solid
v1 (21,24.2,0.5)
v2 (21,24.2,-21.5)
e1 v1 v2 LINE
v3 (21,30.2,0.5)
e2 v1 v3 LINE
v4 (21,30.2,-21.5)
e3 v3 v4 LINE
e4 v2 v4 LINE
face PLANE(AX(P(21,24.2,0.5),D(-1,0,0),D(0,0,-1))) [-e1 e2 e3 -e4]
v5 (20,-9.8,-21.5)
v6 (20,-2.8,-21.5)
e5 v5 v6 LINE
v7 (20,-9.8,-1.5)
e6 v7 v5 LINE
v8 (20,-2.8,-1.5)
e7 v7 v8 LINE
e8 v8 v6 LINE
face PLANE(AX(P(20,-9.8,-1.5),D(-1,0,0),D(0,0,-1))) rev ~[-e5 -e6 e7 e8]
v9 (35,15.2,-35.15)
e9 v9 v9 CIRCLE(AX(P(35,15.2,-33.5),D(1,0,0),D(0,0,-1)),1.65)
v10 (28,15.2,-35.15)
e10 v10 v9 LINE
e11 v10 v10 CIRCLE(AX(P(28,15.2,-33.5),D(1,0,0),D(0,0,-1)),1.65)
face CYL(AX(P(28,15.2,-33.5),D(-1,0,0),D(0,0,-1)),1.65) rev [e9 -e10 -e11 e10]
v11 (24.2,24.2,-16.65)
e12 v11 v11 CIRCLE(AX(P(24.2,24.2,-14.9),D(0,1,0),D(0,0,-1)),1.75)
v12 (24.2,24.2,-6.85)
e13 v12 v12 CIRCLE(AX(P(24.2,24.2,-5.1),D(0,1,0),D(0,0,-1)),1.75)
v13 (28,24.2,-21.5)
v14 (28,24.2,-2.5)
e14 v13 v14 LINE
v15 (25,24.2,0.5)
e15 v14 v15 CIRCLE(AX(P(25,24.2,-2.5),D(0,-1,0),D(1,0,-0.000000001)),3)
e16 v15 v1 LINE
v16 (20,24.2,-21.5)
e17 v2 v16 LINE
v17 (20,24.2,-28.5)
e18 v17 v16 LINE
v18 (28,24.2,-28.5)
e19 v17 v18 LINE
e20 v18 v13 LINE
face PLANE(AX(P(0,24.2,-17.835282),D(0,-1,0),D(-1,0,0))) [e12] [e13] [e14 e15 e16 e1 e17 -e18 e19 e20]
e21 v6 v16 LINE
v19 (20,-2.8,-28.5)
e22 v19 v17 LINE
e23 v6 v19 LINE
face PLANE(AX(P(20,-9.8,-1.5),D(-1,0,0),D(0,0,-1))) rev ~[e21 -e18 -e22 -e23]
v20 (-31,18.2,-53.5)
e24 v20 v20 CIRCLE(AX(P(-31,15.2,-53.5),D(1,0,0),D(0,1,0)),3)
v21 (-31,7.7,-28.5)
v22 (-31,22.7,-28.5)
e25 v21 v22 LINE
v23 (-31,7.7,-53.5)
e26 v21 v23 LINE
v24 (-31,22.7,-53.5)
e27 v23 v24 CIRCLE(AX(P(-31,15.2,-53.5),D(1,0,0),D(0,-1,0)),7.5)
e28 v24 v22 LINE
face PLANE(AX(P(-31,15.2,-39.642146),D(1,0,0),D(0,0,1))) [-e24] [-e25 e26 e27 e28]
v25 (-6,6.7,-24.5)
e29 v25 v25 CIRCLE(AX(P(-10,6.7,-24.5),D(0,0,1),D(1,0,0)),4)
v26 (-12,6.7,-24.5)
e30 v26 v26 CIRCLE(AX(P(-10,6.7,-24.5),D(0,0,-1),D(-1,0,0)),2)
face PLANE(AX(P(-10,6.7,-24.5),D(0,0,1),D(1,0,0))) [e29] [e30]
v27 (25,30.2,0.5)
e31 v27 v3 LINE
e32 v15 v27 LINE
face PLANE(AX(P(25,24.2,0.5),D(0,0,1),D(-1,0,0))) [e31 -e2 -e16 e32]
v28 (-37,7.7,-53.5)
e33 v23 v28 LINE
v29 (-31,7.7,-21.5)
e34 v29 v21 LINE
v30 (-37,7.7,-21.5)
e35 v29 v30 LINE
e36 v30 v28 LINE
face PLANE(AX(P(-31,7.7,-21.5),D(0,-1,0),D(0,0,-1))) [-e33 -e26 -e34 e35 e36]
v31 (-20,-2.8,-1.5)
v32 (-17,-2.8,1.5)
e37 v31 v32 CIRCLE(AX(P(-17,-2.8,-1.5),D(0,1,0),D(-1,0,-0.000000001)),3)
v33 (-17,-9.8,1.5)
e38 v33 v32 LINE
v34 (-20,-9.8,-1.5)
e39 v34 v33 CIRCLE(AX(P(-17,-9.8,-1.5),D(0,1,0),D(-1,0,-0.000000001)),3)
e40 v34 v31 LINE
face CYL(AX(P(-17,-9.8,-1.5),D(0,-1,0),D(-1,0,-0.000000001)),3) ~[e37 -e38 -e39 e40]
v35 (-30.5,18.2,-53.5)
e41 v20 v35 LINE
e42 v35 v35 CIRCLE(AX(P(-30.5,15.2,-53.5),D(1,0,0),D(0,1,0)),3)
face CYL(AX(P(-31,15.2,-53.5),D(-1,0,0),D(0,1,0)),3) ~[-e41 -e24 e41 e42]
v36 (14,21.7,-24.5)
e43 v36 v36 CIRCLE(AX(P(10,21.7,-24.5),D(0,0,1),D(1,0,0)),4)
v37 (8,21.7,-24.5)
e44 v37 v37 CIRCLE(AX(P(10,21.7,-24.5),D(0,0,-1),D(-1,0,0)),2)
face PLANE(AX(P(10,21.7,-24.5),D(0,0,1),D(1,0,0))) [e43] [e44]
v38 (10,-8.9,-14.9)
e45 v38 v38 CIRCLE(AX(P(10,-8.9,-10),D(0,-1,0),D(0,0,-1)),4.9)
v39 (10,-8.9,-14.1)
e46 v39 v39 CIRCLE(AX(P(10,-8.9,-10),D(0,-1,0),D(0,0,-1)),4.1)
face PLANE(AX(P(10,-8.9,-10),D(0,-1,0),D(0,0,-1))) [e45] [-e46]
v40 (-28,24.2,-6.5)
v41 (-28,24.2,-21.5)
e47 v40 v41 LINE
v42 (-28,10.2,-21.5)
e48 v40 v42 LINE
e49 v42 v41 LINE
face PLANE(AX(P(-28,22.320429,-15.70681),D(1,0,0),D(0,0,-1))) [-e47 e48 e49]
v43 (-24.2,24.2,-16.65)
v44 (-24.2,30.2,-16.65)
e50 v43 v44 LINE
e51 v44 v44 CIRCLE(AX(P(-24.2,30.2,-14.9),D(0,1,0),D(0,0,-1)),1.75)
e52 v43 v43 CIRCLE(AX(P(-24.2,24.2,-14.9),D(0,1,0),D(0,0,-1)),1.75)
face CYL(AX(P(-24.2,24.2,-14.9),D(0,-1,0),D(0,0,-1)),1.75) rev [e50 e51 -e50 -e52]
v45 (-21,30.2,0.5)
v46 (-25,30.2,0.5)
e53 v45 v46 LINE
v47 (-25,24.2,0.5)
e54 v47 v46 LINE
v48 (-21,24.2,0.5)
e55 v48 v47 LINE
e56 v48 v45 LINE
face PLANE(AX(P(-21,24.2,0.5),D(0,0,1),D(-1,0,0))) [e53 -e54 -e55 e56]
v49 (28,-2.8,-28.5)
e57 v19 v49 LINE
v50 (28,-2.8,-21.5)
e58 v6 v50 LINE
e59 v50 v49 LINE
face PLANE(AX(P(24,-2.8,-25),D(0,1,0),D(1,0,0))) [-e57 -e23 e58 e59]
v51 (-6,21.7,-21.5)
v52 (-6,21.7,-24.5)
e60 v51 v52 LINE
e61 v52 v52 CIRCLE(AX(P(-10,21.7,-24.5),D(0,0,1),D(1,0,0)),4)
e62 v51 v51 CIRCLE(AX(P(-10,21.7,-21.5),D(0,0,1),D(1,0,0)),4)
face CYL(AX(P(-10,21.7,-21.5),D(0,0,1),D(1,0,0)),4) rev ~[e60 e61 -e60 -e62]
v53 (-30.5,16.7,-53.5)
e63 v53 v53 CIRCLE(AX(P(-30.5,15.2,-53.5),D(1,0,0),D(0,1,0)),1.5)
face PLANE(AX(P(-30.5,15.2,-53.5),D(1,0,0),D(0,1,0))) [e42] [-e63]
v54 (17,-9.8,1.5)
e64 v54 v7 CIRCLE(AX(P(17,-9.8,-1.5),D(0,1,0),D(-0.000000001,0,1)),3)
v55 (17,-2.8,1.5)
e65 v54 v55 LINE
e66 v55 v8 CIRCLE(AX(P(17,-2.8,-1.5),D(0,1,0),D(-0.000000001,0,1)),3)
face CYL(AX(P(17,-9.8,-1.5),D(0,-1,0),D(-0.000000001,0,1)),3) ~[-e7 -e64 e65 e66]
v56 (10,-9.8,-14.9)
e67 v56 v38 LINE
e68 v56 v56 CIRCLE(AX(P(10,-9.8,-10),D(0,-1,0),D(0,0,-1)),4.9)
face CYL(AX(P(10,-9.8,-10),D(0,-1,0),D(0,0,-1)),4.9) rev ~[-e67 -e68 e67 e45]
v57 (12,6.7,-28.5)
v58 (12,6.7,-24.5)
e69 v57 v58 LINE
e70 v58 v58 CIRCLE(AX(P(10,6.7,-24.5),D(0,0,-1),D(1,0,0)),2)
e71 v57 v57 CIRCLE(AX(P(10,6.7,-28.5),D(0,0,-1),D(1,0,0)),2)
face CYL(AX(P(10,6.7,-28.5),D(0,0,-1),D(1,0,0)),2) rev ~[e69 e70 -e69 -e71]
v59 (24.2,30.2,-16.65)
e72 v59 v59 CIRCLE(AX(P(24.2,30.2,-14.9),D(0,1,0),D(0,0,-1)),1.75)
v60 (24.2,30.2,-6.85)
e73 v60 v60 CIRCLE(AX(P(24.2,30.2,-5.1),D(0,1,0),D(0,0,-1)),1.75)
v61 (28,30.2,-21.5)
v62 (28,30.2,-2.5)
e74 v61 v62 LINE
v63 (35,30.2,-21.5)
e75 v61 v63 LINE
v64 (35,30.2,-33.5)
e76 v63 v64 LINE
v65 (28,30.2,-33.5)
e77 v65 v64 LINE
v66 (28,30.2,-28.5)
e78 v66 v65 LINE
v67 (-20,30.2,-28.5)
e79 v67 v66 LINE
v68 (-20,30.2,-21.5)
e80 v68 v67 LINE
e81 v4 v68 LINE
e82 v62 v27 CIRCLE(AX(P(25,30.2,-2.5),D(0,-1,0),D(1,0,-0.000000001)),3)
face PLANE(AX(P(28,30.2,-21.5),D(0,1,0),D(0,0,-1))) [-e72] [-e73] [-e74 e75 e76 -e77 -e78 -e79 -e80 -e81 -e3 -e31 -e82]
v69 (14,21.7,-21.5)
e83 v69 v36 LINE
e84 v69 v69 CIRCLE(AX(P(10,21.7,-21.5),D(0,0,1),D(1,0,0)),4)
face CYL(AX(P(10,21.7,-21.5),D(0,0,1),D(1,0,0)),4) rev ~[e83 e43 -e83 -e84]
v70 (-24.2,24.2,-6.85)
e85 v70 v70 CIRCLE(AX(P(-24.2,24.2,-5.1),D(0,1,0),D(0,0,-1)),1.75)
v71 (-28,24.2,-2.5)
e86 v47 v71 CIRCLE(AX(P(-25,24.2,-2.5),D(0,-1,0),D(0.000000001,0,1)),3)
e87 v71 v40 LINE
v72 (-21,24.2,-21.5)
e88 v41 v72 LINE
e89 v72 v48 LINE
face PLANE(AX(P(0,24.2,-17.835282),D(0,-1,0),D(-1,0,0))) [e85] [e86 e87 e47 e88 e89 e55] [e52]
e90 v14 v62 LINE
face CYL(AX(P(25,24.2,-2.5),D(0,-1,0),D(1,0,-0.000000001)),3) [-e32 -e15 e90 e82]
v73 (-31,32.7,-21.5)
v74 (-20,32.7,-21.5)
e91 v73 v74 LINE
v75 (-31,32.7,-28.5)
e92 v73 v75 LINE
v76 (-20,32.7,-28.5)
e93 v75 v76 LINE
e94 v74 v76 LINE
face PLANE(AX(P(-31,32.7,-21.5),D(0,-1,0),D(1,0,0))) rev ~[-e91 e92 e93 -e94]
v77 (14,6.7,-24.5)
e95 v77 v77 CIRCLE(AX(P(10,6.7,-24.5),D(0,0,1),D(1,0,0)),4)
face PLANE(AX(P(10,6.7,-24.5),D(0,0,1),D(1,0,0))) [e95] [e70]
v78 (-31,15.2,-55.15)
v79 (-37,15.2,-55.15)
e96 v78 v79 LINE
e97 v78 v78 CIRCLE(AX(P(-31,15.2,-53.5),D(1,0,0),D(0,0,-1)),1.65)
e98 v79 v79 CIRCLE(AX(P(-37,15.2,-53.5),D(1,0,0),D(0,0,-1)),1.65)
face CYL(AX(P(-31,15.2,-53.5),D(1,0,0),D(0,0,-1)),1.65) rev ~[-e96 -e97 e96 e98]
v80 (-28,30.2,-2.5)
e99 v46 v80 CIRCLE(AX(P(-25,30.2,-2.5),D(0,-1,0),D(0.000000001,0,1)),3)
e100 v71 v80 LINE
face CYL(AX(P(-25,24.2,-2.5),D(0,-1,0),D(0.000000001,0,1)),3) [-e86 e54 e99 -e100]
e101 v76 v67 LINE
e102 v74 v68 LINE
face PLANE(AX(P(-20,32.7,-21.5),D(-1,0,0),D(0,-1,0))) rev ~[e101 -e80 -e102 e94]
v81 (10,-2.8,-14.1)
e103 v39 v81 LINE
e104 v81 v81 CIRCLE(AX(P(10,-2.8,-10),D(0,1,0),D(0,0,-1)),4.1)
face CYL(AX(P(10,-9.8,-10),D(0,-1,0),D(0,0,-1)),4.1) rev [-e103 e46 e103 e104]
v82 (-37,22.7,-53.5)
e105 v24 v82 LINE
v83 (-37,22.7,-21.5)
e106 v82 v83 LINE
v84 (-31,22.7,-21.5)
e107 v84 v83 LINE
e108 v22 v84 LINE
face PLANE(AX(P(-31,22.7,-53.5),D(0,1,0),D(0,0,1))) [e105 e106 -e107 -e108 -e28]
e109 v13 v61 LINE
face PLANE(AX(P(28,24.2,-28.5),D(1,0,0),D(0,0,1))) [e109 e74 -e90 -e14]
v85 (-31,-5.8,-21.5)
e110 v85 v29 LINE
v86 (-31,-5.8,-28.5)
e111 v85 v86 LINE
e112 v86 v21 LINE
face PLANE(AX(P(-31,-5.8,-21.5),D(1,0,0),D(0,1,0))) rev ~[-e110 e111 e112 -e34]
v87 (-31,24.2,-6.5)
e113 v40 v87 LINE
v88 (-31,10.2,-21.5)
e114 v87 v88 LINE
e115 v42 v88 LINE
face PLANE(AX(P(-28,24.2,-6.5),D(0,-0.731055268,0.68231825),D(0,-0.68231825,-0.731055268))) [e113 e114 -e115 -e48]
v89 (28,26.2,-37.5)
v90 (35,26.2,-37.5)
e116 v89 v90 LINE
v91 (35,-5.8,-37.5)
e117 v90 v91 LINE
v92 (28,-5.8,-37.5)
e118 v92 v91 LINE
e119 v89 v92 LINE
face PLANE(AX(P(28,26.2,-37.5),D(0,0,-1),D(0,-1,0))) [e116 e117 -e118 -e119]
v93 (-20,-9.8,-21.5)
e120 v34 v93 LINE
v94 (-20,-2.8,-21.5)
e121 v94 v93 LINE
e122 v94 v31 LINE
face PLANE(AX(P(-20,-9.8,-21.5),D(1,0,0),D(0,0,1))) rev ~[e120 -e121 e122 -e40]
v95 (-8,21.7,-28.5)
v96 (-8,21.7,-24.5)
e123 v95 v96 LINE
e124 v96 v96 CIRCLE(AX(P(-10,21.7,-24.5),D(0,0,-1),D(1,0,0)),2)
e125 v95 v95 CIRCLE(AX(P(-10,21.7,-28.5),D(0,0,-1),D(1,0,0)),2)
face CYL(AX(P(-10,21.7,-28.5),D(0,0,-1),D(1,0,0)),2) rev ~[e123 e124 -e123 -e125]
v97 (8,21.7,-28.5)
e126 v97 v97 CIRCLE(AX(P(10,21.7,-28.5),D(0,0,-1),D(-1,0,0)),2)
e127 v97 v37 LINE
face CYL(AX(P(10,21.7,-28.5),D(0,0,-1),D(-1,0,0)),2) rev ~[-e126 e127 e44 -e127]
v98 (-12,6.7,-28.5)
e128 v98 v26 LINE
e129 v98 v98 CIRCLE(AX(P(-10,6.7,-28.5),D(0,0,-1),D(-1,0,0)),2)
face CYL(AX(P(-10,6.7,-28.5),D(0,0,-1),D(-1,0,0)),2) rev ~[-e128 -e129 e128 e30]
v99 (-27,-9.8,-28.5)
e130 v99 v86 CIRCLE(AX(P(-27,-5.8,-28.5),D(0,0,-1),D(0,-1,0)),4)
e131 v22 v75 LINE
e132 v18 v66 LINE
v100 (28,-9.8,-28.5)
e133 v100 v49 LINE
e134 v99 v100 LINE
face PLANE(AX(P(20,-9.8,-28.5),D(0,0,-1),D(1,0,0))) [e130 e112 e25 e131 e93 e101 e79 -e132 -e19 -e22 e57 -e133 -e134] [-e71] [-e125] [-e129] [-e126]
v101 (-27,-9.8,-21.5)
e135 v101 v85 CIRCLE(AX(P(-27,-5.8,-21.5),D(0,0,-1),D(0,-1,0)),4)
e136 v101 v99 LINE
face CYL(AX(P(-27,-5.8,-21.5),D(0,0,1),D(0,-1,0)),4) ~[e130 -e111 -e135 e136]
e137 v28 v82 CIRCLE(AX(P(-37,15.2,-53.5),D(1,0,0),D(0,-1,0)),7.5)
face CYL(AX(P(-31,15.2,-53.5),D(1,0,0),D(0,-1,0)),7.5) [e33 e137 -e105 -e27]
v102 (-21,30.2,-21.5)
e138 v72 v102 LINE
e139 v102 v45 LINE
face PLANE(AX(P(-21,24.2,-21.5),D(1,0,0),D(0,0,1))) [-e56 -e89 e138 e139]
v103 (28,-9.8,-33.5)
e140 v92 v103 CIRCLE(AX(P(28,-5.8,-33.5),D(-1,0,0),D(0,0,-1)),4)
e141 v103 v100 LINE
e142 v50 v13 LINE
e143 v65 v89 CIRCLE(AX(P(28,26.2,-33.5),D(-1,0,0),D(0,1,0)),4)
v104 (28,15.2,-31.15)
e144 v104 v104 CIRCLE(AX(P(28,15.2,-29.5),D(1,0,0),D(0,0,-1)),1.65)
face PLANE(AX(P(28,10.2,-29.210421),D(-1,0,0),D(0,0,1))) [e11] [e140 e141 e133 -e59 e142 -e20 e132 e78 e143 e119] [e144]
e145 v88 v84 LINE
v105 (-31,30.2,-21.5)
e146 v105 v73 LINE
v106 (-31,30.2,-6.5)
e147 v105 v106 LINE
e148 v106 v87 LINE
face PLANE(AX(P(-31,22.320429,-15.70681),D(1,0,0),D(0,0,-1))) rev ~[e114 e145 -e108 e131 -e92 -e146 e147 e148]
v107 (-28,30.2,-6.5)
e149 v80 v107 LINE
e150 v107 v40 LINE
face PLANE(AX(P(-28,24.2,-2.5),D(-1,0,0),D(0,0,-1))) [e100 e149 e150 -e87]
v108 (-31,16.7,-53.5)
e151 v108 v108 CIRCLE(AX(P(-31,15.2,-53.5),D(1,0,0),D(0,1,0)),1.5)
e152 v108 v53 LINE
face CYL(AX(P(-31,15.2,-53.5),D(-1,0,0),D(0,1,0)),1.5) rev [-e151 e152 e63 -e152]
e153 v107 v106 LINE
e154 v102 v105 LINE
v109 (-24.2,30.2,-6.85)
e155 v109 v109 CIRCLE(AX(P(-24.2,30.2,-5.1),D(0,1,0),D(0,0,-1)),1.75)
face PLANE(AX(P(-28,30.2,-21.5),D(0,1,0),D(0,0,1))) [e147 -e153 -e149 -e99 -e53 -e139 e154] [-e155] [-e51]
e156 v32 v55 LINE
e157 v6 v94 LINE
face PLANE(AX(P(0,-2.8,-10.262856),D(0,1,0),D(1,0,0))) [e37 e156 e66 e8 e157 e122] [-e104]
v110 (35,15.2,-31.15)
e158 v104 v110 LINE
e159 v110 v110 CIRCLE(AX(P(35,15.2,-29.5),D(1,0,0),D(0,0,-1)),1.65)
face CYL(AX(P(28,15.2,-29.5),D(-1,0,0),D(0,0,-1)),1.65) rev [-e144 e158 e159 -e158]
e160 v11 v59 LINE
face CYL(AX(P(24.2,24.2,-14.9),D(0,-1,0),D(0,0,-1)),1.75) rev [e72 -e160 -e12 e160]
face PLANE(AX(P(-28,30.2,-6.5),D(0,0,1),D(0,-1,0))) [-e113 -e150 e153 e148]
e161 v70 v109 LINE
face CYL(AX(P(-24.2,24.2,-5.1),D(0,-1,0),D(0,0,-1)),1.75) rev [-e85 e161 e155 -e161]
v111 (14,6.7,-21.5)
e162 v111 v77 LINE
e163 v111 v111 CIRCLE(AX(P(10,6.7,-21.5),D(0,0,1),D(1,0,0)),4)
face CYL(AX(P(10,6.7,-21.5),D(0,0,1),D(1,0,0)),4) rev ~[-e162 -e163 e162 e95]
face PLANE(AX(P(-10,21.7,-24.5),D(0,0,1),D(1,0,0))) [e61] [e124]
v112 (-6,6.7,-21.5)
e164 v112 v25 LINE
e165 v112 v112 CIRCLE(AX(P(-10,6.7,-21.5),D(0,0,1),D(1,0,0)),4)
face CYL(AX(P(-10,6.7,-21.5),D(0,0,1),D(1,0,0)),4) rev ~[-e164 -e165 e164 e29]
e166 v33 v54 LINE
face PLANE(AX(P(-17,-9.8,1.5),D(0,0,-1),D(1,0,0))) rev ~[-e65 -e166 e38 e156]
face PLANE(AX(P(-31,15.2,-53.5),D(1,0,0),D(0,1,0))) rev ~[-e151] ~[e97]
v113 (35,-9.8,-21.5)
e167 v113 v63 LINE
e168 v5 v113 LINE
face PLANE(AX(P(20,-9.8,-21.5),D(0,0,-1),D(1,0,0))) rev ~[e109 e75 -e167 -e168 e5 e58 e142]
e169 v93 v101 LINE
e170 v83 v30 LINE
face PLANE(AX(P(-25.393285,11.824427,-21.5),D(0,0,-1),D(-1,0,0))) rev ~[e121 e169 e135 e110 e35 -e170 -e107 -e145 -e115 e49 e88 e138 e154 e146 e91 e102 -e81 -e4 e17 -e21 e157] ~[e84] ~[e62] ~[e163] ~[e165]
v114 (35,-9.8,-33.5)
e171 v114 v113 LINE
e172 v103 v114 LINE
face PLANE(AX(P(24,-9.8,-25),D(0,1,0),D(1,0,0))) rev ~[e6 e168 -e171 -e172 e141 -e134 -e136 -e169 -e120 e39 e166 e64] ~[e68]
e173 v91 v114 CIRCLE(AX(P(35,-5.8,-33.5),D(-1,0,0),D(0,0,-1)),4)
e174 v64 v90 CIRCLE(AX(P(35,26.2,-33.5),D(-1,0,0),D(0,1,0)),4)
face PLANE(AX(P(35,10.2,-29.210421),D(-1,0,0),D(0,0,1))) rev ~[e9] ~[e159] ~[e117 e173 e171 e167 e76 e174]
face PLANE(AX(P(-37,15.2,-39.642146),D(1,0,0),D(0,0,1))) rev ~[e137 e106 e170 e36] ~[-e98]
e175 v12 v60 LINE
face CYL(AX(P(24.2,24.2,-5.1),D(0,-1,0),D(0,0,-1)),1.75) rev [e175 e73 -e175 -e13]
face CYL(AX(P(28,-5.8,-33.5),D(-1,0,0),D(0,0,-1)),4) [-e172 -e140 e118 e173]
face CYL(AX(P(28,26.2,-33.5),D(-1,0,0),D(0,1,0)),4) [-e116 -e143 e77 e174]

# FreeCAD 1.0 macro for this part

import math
import FreeCAD as App
import Part
import Sketcher


def add_polygon(sketch, points):
    """Adds a closed chain of lines whose ends are joined by coincident constraints."""
    first, n = sketch.GeometryCount, len(points)
    for a, b in zip(points, points[1:] + points[:1]):
        sketch.addGeometry(Part.LineSegment(App.Vector(*a, 0), App.Vector(*b, 0)), False)
    for i in range(n):
        sketch.addConstraint(Sketcher.Constraint("Coincident", first + i, 2, first + (i + 1) % n, 1))

doc = App.newDocument("Part")
params = doc.addObject("Spreadsheet::Sheet", "Params")
for row, (alias, value) in enumerate([
    ("sketch1_radius", "3 mm"),
    ("sketch1_diameter", "3.5 mm"),
    ("sketch1_width", "56 mm"),
    ("sketch1_width2", "4 mm"),
    ("sketch1_height", "26 mm"),
    ("pad1_length", "6 mm"),
    ("sketch2_diameter", "4 mm"),
    ("sketch2_width", "40 mm"),
    ("sketch2_height", "34 mm"),
    ("pad2_length", "7 mm"),
    ("sketch3_diameter", "8 mm"),
    ("pocket1_length", "3 mm"),
    ("sketch4_radius", "3 mm"),
    ("sketch4_diameter", "8.2 mm"),
    ("sketch4_width", "40 mm"),
    ("sketch4_height", "20 mm"),
    ("pad3_length", "7 mm"),
    ("sketch5_diameter", "9.8 mm"),
    ("pocket2_length", "0.9 mm"),
    ("sketch6_diameter", "3.3 mm"),
    ("sketch6_radius", "7.5 mm"),
    ("sketch6_height", "32 mm"),
    ("pad4_length", "6 mm"),
    ("sketch7_radius", "4 mm"),
    ("sketch7_width", "11 mm"),
    ("sketch7_height", "38.5 mm"),
    ("pad5_length", "7 mm"),
    ("sketch8_width", "6 mm"),
    ("sketch8_width2", "20 mm"),
    ("sketch8_height", "15 mm"),
    ("pad6_length", "3 mm"),
    ("sketch9_radius", "4 mm"),
    ("sketch9_diameter", "3.3 mm"),
    ("sketch9_width", "40 mm"),
    ("sketch9_height", "12 mm"),
    ("pad7_length", "7 mm"),
    ("sketch10_width", "8 mm"),
    ("sketch10_height", "7 mm"),
    ("pad8_length", "7 mm"),
    ("sketch11_diameter", "6 mm"),
    ("sketch11_diameter2", "3 mm"),
    ("pad9_length", "0.5 mm"),
], start=1):
    params.set(f"A{row}", alias)
    params.set(f"B{row}", "=" + value)
    params.setAlias(f"B{row}", alias)

body = doc.addObject("PartDesign::Body", "Body")

# Sketch on XZ plane
sketch1 = doc.addObject("Sketcher::SketchObject", "Sketch")
body.addObject(sketch1)
sketch1.AttachmentSupport = (doc.XZ_Plane, [""])
sketch1.MapMode = "FlatFace"
sketch1.AttachmentOffset = App.Placement(App.Vector(0, 0, -24.2), App.Rotation())
sketch1.addGeometry([
    Part.LineSegment(App.Vector(28, -28.5, 0), App.Vector(-28, -28.5, 0)),  # 0
    Part.LineSegment(App.Vector(-28, -28.5, 0), App.Vector(-28, -2.5, 0)),  # 1
    Part.ArcOfCircle(Part.Circle(App.Vector(-25, -2.5, 0), App.Vector(0, 0, 1), 3), math.radians(90), math.radians(180)),  # 2
    Part.LineSegment(App.Vector(-25, 0.5, 0), App.Vector(-21, 0.5, 0)),  # 3
    Part.LineSegment(App.Vector(-21, 0.5, 0), App.Vector(-21, -21.5, 0)),  # 4
    Part.LineSegment(App.Vector(-21, -21.5, 0), App.Vector(21, -21.5, 0)),  # 5
    Part.LineSegment(App.Vector(21, -21.5, 0), App.Vector(21, 0.5, 0)),  # 6
    Part.LineSegment(App.Vector(21, 0.5, 0), App.Vector(25, 0.5, 0)),  # 7
    Part.ArcOfCircle(Part.Circle(App.Vector(25, -2.5, 0), App.Vector(0, 0, 1), 3), math.radians(0), math.radians(90)),  # 8
    Part.LineSegment(App.Vector(28, -2.5, 0), App.Vector(28, -28.5, 0)),  # 9
    Part.Circle(App.Vector(24.2, -5.1, 0), App.Vector(0, 0, 1), 1.8),  # 10
    Part.Circle(App.Vector(-24.2, -5.1, 0), App.Vector(0, 0, 1), 1.8),  # 11
    Part.Circle(App.Vector(24.2, -14.9, 0), App.Vector(0, 0, 1), 1.8),  # 12
    Part.Circle(App.Vector(-24.2, -14.9, 0), App.Vector(0, 0, 1), 1.8),  # 13
], False)
sketch1.addConstraint([
    Sketcher.Constraint("Coincident", 0, 2, 1, 1),
    Sketcher.Constraint("Tangent", 1, 2, 2, 2),
    Sketcher.Constraint("Tangent", 2, 1, 3, 1),
    Sketcher.Constraint("Coincident", 3, 2, 4, 1),
    Sketcher.Constraint("Coincident", 4, 2, 5, 1),
    Sketcher.Constraint("Coincident", 5, 2, 6, 1),
    Sketcher.Constraint("Coincident", 6, 2, 7, 1),
    Sketcher.Constraint("Tangent", 7, 2, 8, 2),
    Sketcher.Constraint("Tangent", 8, 1, 9, 1),
    Sketcher.Constraint("Coincident", 9, 2, 0, 1),
    Sketcher.Constraint("Horizontal", 0),
    Sketcher.Constraint("Vertical", 1),
    Sketcher.Constraint("Horizontal", 3),
    Sketcher.Constraint("Vertical", 4),
    Sketcher.Constraint("Horizontal", 5),
    Sketcher.Constraint("Vertical", 6),
    Sketcher.Constraint("Horizontal", 7),
    Sketcher.Constraint("Vertical", 9),
    Sketcher.Constraint("Equal", 2, 8),
    Sketcher.Constraint("Equal", 10, 11),
    Sketcher.Constraint("Equal", 11, 12),
    Sketcher.Constraint("Equal", 12, 13),
    Sketcher.Constraint("Symmetric", 2, 3, 8, 3, -2),
    Sketcher.Constraint("Symmetric", 10, 3, 11, 3, -2),
    Sketcher.Constraint("Symmetric", 12, 3, 13, 3, -2),
    Sketcher.Constraint("Vertical", 10, 3, 12, 3),
    Sketcher.Constraint("Equal", 3, 7),
    Sketcher.Constraint("Radius", 2, 3.0),
    Sketcher.Constraint("Diameter", 10, 3.5),
    Sketcher.Constraint("DistanceX", 0, 2, 0, 1, 56.0),
    Sketcher.Constraint("DistanceX", 3, 1, 3, 2, 4.0),
    Sketcher.Constraint("DistanceY", 1, 1, 1, 2, 26.0),
    Sketcher.Constraint("DistanceY", 4, 2, 4, 1, 22.0),
    Sketcher.Constraint("DistanceY", 2, 3, -1, 1, 2.5),
    Sketcher.Constraint("DistanceX", -1, 1, 10, 3, 24.2),
    Sketcher.Constraint("DistanceY", 10, 3, -1, 1, 5.1),
    Sketcher.Constraint("DistanceY", 12, 3, -1, 1, 14.9),
])
sketch1.setExpression("Constraints[27]", "Params.sketch1_radius")
sketch1.setExpression("Constraints[28]", "Params.sketch1_diameter")
sketch1.setExpression("Constraints[29]", "Params.sketch1_width")
sketch1.setExpression("Constraints[30]", "Params.sketch1_width2")
sketch1.setExpression("Constraints[31]", "Params.sketch1_height")
pad1 = doc.addObject("PartDesign::Pad", "Pad")
body.addObject(pad1)
pad1.Profile = sketch1
pad1.setExpression("Length", "Params.pad1_length")
pad1.Reversed = True

# Sketch on XY plane
sketch2 = doc.addObject("Sketcher::SketchObject", "Sketch001")
body.addObject(sketch2)
sketch2.AttachmentSupport = (doc.XY_Plane, [""])
sketch2.MapMode = "FlatFace"
sketch2.AttachmentOffset = App.Placement(App.Vector(0, 0, -28.5), App.Rotation())
add_polygon(sketch2, [(20, 24.2), (20, -9.8), (-20, -9.8), (-20, 24.2)])  # lines 0-3
sketch2.addGeometry(Part.Circle(App.Vector(10, 6.7, 0), App.Vector(0, 0, 1), 2), False)  # 4
sketch2.addGeometry(Part.Circle(App.Vector(-10, 6.7, 0), App.Vector(0, 0, 1), 2), False)  # 5
sketch2.addGeometry(Part.Circle(App.Vector(10, 21.7, 0), App.Vector(0, 0, 1), 2), False)  # 6
sketch2.addGeometry(Part.Circle(App.Vector(-10, 21.7, 0), App.Vector(0, 0, 1), 2), False)  # 7
sketch2.addConstraint([
    Sketcher.Constraint("Vertical", 0),
    Sketcher.Constraint("Horizontal", 1),
    Sketcher.Constraint("Vertical", 2),
    Sketcher.Constraint("Horizontal", 3),
    Sketcher.Constraint("Equal", 4, 5),
    Sketcher.Constraint("Equal", 5, 6),
    Sketcher.Constraint("Equal", 6, 7),
    Sketcher.Constraint("Symmetric", 4, 3, 5, 3, -2),
    Sketcher.Constraint("Symmetric", 6, 3, 7, 3, -2),
    Sketcher.Constraint("Vertical", 4, 3, 6, 3),
    Sketcher.Constraint("Diameter", 4, 4.0),
    Sketcher.Constraint("DistanceX", 1, 2, 1, 1, 40.0),
    Sketcher.Constraint("DistanceY", 0, 2, 0, 1, 34.0),
    Sketcher.Constraint("DistanceX", -1, 1, 4, 3, 10.0),
    Sketcher.Constraint("DistanceX", -1, 1, 0, 2, 20.0),
    Sketcher.Constraint("DistanceY", 4, 3, 6, 3, 15.0),
    Sketcher.Constraint("DistanceY", -1, 1, 4, 3, 6.7),
    Sketcher.Constraint("DistanceY", 0, 2, -1, 1, 9.8),
])
sketch2.setExpression("Constraints[14]", "Params.sketch2_diameter")
sketch2.setExpression("Constraints[15]", "Params.sketch2_width")
sketch2.setExpression("Constraints[16]", "Params.sketch2_height")
pad2 = doc.addObject("PartDesign::Pad", "Pad001")
body.addObject(pad2)
pad2.Profile = sketch2
pad2.setExpression("Length", "Params.pad2_length")

# Sketch on XY plane
sketch3 = doc.addObject("Sketcher::SketchObject", "Sketch002")
body.addObject(sketch3)
sketch3.AttachmentSupport = (doc.XY_Plane, [""])
sketch3.MapMode = "FlatFace"
sketch3.AttachmentOffset = App.Placement(App.Vector(0, 0, -21.5), App.Rotation())
sketch3.addGeometry([
    Part.Circle(App.Vector(-10, 21.7, 0), App.Vector(0, 0, 1), 4),
    Part.Circle(App.Vector(10, 21.7, 0), App.Vector(0, 0, 1), 4),
    Part.Circle(App.Vector(-10, 6.7, 0), App.Vector(0, 0, 1), 4),
    Part.Circle(App.Vector(10, 6.7, 0), App.Vector(0, 0, 1), 4),
], False)
sketch3.addConstraint([
    Sketcher.Constraint("Equal", 0, 1),
    Sketcher.Constraint("Equal", 1, 2),
    Sketcher.Constraint("Equal", 2, 3),
    Sketcher.Constraint("Symmetric", 0, 3, 1, 3, -2),
    Sketcher.Constraint("Symmetric", 2, 3, 3, 3, -2),
    Sketcher.Constraint("Vertical", 0, 3, 2, 3),
    Sketcher.Constraint("Diameter", 0, 8.0),
    Sketcher.Constraint("DistanceX", 0, 3, -1, 1, 10.0),
    Sketcher.Constraint("DistanceY", 2, 3, 0, 3, 15.0),
    Sketcher.Constraint("DistanceY", -1, 1, 0, 3, 21.7),
])
sketch3.setExpression("Constraints[6]", "Params.sketch3_diameter")
pocket1 = doc.addObject("PartDesign::Pocket", "Pocket")
body.addObject(pocket1)
pocket1.Profile = sketch3
pocket1.setExpression("Length", "Params.pocket1_length")

# Sketch on XZ plane
sketch4 = doc.addObject("Sketcher::SketchObject", "Sketch003")
body.addObject(sketch4)
sketch4.AttachmentSupport = (doc.XZ_Plane, [""])
sketch4.MapMode = "FlatFace"
sketch4.AttachmentOffset = App.Placement(App.Vector(0, 0, 9.8), App.Rotation())
sketch4.addGeometry([
    Part.LineSegment(App.Vector(20, -21.5, 0), App.Vector(-20, -21.5, 0)),  # 0
    Part.LineSegment(App.Vector(-20, -21.5, 0), App.Vector(-20, -1.5, 0)),  # 1
    Part.ArcOfCircle(Part.Circle(App.Vector(-17, -1.5, 0), App.Vector(0, 0, 1), 3), math.radians(90), math.radians(180)),  # 2
    Part.LineSegment(App.Vector(-17, 1.5, 0), App.Vector(17, 1.5, 0)),  # 3
    Part.ArcOfCircle(Part.Circle(App.Vector(17, -1.5, 0), App.Vector(0, 0, 1), 3), math.radians(0), math.radians(90)),  # 4
    Part.LineSegment(App.Vector(20, -1.5, 0), App.Vector(20, -21.5, 0)),  # 5
    Part.Circle(App.Vector(10, -10, 0), App.Vector(0, 0, 1), 4.1),  # 6
], False)
sketch4.addConstraint([
    Sketcher.Constraint("Coincident", 0, 2, 1, 1),
    Sketcher.Constraint("Tangent", 1, 2, 2, 2),
    Sketcher.Constraint("Tangent", 2, 1, 3, 1),
    Sketcher.Constraint("Tangent", 3, 2, 4, 2),
    Sketcher.Constraint("Tangent", 4, 1, 5, 1),
    Sketcher.Constraint("Coincident", 5, 2, 0, 1),
    Sketcher.Constraint("Horizontal", 0),
    Sketcher.Constraint("Vertical", 1),
    Sketcher.Constraint("Horizontal", 3),
    Sketcher.Constraint("Vertical", 5),
    Sketcher.Constraint("Equal", 2, 4),
    Sketcher.Constraint("Radius", 2, 3.0),
    Sketcher.Constraint("Diameter", 6, 8.2),
    Sketcher.Constraint("DistanceX", 0, 2, 0, 1, 40.0),
    Sketcher.Constraint("DistanceY", 1, 1, 1, 2, 20.0),
    Sketcher.Constraint("DistanceX", 2, 3, -1, 1, 17.0),
    Sketcher.Constraint("DistanceX", -1, 1, 6, 3, 10.0),
    Sketcher.Constraint("DistanceY", 6, 3, -1, 1, 10.0),
    Sketcher.Constraint("DistanceY", 2, 3, -1, 1, 1.5),
])
sketch4.setExpression("Constraints[11]", "Params.sketch4_radius")
sketch4.setExpression("Constraints[12]", "Params.sketch4_diameter")
sketch4.setExpression("Constraints[13]", "Params.sketch4_width")
sketch4.setExpression("Constraints[14]", "Params.sketch4_height")
pad3 = doc.addObject("PartDesign::Pad", "Pad002")
body.addObject(pad3)
pad3.Profile = sketch4
pad3.setExpression("Length", "Params.pad3_length")
pad3.Reversed = True

# Sketch on XZ plane
sketch5 = doc.addObject("Sketcher::SketchObject", "Sketch004")
body.addObject(sketch5)
sketch5.AttachmentSupport = (doc.XZ_Plane, [""])
sketch5.MapMode = "FlatFace"
sketch5.AttachmentOffset = App.Placement(App.Vector(0, 0, 9.8), App.Rotation())
sketch5.addGeometry(Part.Circle(App.Vector(10, -10, 0), App.Vector(0, 0, 1), 4.9), False)
sketch5.addConstraint([
    Sketcher.Constraint("Diameter", 0, 9.8),
    Sketcher.Constraint("DistanceX", -1, 1, 0, 3, 10.0),
    Sketcher.Constraint("DistanceY", 0, 3, -1, 1, 10.0),
])
sketch5.setExpression("Constraints[0]", "Params.sketch5_diameter")
pocket2 = doc.addObject("PartDesign::Pocket", "Pocket001")
body.addObject(pocket2)
pocket2.Profile = sketch5
pocket2.setExpression("Length", "Params.pocket2_length")
body2 = doc.addObject("PartDesign::Body", "Body001")

# Sketch on YZ plane
sketch6 = doc.addObject("Sketcher::SketchObject", "Sketch005")
body2.addObject(sketch6)
sketch6.AttachmentSupport = (doc.getObject("YZ_Plane001"), [""])
sketch6.MapMode = "FlatFace"
sketch6.AttachmentOffset = App.Placement(App.Vector(0, 0, -31), App.Rotation())
sketch6.addGeometry([
    Part.LineSegment(App.Vector(22.7, -53.5, 0), App.Vector(22.7, -21.5, 0)),  # 0
    Part.LineSegment(App.Vector(22.7, -21.5, 0), App.Vector(7.7, -21.5, 0)),  # 1
    Part.LineSegment(App.Vector(7.7, -21.5, 0), App.Vector(7.7, -53.5, 0)),  # 2
    Part.ArcOfCircle(Part.Circle(App.Vector(15.2, -53.5, 0), App.Vector(0, 0, 1), 7.5), math.radians(180), math.radians(360)),  # 3
    Part.Circle(App.Vector(15.2, -53.5, 0), App.Vector(0, 0, 1), 1.6),  # 4
], False)
sketch6.addConstraint([
    Sketcher.Constraint("Coincident", 0, 2, 1, 1),
    Sketcher.Constraint("Coincident", 1, 2, 2, 1),
    Sketcher.Constraint("Tangent", 2, 2, 3, 1),
    Sketcher.Constraint("Tangent", 3, 2, 0, 1),
    Sketcher.Constraint("Vertical", 0),
    Sketcher.Constraint("Horizontal", 1),
    Sketcher.Constraint("Vertical", 2),
    Sketcher.Constraint("Coincident", 4, 3, 3, 3),
    Sketcher.Constraint("Diameter", 4, 3.3),
    Sketcher.Constraint("Radius", 3, 7.5),
    Sketcher.Constraint("DistanceY", 0, 1, 0, 2, 32.0),
    Sketcher.Constraint("DistanceX", -1, 1, 3, 3, 15.2),
    Sketcher.Constraint("DistanceY", 3, 3, -1, 1, 53.5),
])
sketch6.setExpression("Constraints[8]", "Params.sketch6_diameter")
sketch6.setExpression("Constraints[9]", "Params.sketch6_radius")
sketch6.setExpression("Constraints[10]", "Params.sketch6_height")
pad4 = doc.addObject("PartDesign::Pad", "Pad003")
body2.addObject(pad4)
pad4.Profile = sketch6
pad4.setExpression("Length", "Params.pad4_length")
pad4.Reversed = True
body.AllowCompound = True
doc.recompute()

boolean = doc.addObject("PartDesign::Boolean", "Boolean")
body.addObject(boolean)
boolean.Type = "Fuse"
boolean.addObjects([body2])

# Sketch on XY plane
sketch7 = doc.addObject("Sketcher::SketchObject", "Sketch006")
body.addObject(sketch7)
sketch7.AttachmentSupport = (doc.XY_Plane, [""])
sketch7.MapMode = "FlatFace"
sketch7.AttachmentOffset = App.Placement(App.Vector(0, 0, -21.5), App.Rotation())
sketch7.addGeometry([
    Part.LineSegment(App.Vector(-20, 32.7, 0), App.Vector(-31, 32.7, 0)),  # 0
    Part.LineSegment(App.Vector(-31, 32.7, 0), App.Vector(-31, -5.8, 0)),  # 1
    Part.ArcOfCircle(Part.Circle(App.Vector(-27, -5.8, 0), App.Vector(0, 0, 1), 4), math.radians(180), math.radians(270)),  # 2
    Part.LineSegment(App.Vector(-27, -9.8, 0), App.Vector(-20, -9.8, 0)),  # 3
    Part.LineSegment(App.Vector(-20, -9.8, 0), App.Vector(-20, 32.7, 0)),  # 4
], False)
sketch7.addConstraint([
    Sketcher.Constraint("Coincident", 0, 2, 1, 1),
    Sketcher.Constraint("Tangent", 1, 2, 2, 1),
    Sketcher.Constraint("Tangent", 2, 2, 3, 1),
    Sketcher.Constraint("Coincident", 3, 2, 4, 1),
    Sketcher.Constraint("Coincident", 4, 2, 0, 1),
    Sketcher.Constraint("Horizontal", 0),
    Sketcher.Constraint("Vertical", 1),
    Sketcher.Constraint("Horizontal", 3),
    Sketcher.Constraint("Vertical", 4),
    Sketcher.Constraint("Radius", 2, 4.0),
    Sketcher.Constraint("DistanceX", 0, 2, 0, 1, 11.0),
    Sketcher.Constraint("DistanceY", 1, 2, 1, 1, 38.5),
    Sketcher.Constraint("DistanceX", 2, 3, -1, 1, 27.0),
    Sketcher.Constraint("DistanceY", 2, 3, -1, 1, 5.8),
])
sketch7.setExpression("Constraints[9]", "Params.sketch7_radius")
sketch7.setExpression("Constraints[10]", "Params.sketch7_width")
sketch7.setExpression("Constraints[11]", "Params.sketch7_height")
pad5 = doc.addObject("PartDesign::Pad", "Pad004")
body.addObject(pad5)
pad5.Profile = sketch7
pad5.setExpression("Length", "Params.pad5_length")
pad5.Reversed = True

# Sketch on YZ plane
sketch8 = doc.addObject("Sketcher::SketchObject", "Sketch007")
body.addObject(sketch8)
sketch8.AttachmentSupport = (doc.YZ_Plane, [""])
sketch8.MapMode = "FlatFace"
sketch8.AttachmentOffset = App.Placement(App.Vector(0, 0, -28), App.Rotation())
add_polygon(sketch8, [(30, -6), (24, -6), (10, -22), (30, -22)])  # lines 0-3
sketch8.addConstraint([
    Sketcher.Constraint("Horizontal", 0),
    Sketcher.Constraint("Horizontal", 2),
    Sketcher.Constraint("Vertical", 3),
    Sketcher.Constraint("DistanceX", 0, 2, 0, 1, 6.0),
    Sketcher.Constraint("DistanceX", 2, 1, 2, 2, 20.0),
    Sketcher.Constraint("DistanceY", 3, 1, 3, 2, 15.0),
    Sketcher.Constraint("DistanceX", -1, 1, 0, 2, 24.2),
    Sketcher.Constraint("DistanceY", 0, 2, -1, 1, 6.5),
])
sketch8.setExpression("Constraints[7]", "Params.sketch8_width")
sketch8.setExpression("Constraints[8]", "Params.sketch8_width2")
sketch8.setExpression("Constraints[9]", "Params.sketch8_height")
pad6 = doc.addObject("PartDesign::Pad", "Pad005")
body.addObject(pad6)
pad6.Profile = sketch8
pad6.setExpression("Length", "Params.pad6_length")
pad6.Reversed = True

# Sketch on YZ plane
sketch9 = doc.addObject("Sketcher::SketchObject", "Sketch008")
body.addObject(sketch9)
sketch9.AttachmentSupport = (doc.YZ_Plane, [""])
sketch9.MapMode = "FlatFace"
sketch9.AttachmentOffset = App.Placement(App.Vector(0, 0, 28), App.Rotation())
sketch9.addGeometry([
    Part.LineSegment(App.Vector(30.2, -33.5, 0), App.Vector(30.2, -21.5, 0)),  # 0
    Part.LineSegment(App.Vector(30.2, -21.5, 0), App.Vector(-9.8, -21.5, 0)),  # 1
    Part.LineSegment(App.Vector(-9.8, -21.5, 0), App.Vector(-9.8, -33.5, 0)),  # 2
    Part.ArcOfCircle(Part.Circle(App.Vector(-5.8, -33.5, 0), App.Vector(0, 0, 1), 4), math.radians(180), math.radians(270)),  # 3
    Part.LineSegment(App.Vector(-5.8, -37.5, 0), App.Vector(26.2, -37.5, 0)),  # 4
    Part.ArcOfCircle(Part.Circle(App.Vector(26.2, -33.5, 0), App.Vector(0, 0, 1), 4), math.radians(-90), math.radians(0)),  # 5
    Part.Circle(App.Vector(15.2, -33.5, 0), App.Vector(0, 0, 1), 1.6),  # 6
    Part.Circle(App.Vector(15.2, -29.5, 0), App.Vector(0, 0, 1), 1.6),  # 7
], False)
sketch9.addConstraint([
    Sketcher.Constraint("Coincident", 0, 2, 1, 1),
    Sketcher.Constraint("Coincident", 1, 2, 2, 1),
    Sketcher.Constraint("Tangent", 2, 2, 3, 1),
    Sketcher.Constraint("Tangent", 3, 2, 4, 1),
    Sketcher.Constraint("Tangent", 4, 2, 5, 1),
    Sketcher.Constraint("Tangent", 5, 2, 0, 1),
    Sketcher.Constraint("Vertical", 0),
    Sketcher.Constraint("Horizontal", 1),
    Sketcher.Constraint("Vertical", 2),
    Sketcher.Constraint("Horizontal", 4),
    Sketcher.Constraint("Equal", 3, 5),
    Sketcher.Constraint("Equal", 6, 7),
    Sketcher.Constraint("Horizontal", 5, 3, 6, 3),
    Sketcher.Constraint("Vertical", 6, 3, 7, 3),
    Sketcher.Constraint("Radius", 3, 4.0),
    Sketcher.Constraint("Diameter", 6, 3.3),
    Sketcher.Constraint("DistanceX", 1, 2, 1, 1, 40.0),
    Sketcher.Constraint("DistanceY", 0, 1, 0, 2, 12.0),
    Sketcher.Constraint("DistanceX", 6, 3, 5, 3, 11.0),
    Sketcher.Constraint("DistanceY", 6, 3, 7, 3, 4.0),
    Sketcher.Constraint("DistanceX", 3, 3, -1, 1, 5.8),
    Sketcher.Constraint("DistanceY", 3, 3, -1, 1, 33.5),
])
sketch9.setExpression("Constraints[14]", "Params.sketch9_radius")
sketch9.setExpression("Constraints[15]", "Params.sketch9_diameter")
sketch9.setExpression("Constraints[16]", "Params.sketch9_width")
sketch9.setExpression("Constraints[17]", "Params.sketch9_height")
pad7 = doc.addObject("PartDesign::Pad", "Pad006")
body.addObject(pad7)
pad7.Profile = sketch9
pad7.setExpression("Length", "Params.pad7_length")

# Sketch on XZ plane
sketch10 = doc.addObject("Sketcher::SketchObject", "Sketch009")
body.addObject(sketch10)
sketch10.AttachmentSupport = (doc.XZ_Plane, [""])
sketch10.MapMode = "FlatFace"
sketch10.AttachmentOffset = App.Placement(App.Vector(0, 0, 9.8), App.Rotation())
add_polygon(sketch10, [(20, -28), (20, -22), (28, -22), (28, -28)])  # lines 0-3
sketch10.addConstraint([
    Sketcher.Constraint("Vertical", 0),
    Sketcher.Constraint("Horizontal", 1),
    Sketcher.Constraint("Vertical", 2),
    Sketcher.Constraint("Horizontal", 3),
    Sketcher.Constraint("DistanceX", 1, 1, 1, 2, 8.0),
    Sketcher.Constraint("DistanceY", 0, 1, 0, 2, 7.0),
    Sketcher.Constraint("DistanceX", -1, 1, 0, 2, 20.0),
    Sketcher.Constraint("DistanceY", 0, 2, -1, 1, 21.5),
])
sketch10.setExpression("Constraints[8]", "Params.sketch10_width")
sketch10.setExpression("Constraints[9]", "Params.sketch10_height")
pad8 = doc.addObject("PartDesign::Pad", "Pad007")
body.addObject(pad8)
pad8.Profile = sketch10
pad8.setExpression("Length", "Params.pad8_length")
pad8.Reversed = True

# Sketch on YZ plane
sketch11 = doc.addObject("Sketcher::SketchObject", "Sketch010")
body.addObject(sketch11)
sketch11.AttachmentSupport = (doc.YZ_Plane, [""])
sketch11.MapMode = "FlatFace"
sketch11.AttachmentOffset = App.Placement(App.Vector(0, 0, -31), App.Rotation())
sketch11.addGeometry([
    Part.Circle(App.Vector(15.2, -53.5, 0), App.Vector(0, 0, 1), 3),
    Part.Circle(App.Vector(15.2, -53.5, 0), App.Vector(0, 0, 1), 1.5),
], False)
sketch11.addConstraint([
    Sketcher.Constraint("Coincident", 1, 3, 0, 3),
    Sketcher.Constraint("Diameter", 0, 6.0),
    Sketcher.Constraint("Diameter", 1, 3.0),
    Sketcher.Constraint("DistanceX", -1, 1, 0, 3, 15.2),
    Sketcher.Constraint("DistanceY", 0, 3, -1, 1, 53.5),
])
sketch11.setExpression("Constraints[1]", "Params.sketch11_diameter")
sketch11.setExpression("Constraints[2]", "Params.sketch11_diameter2")
pad9 = doc.addObject("PartDesign::Pad", "Pad008")
body.addObject(pad9)
pad9.Profile = sketch11
pad9.setExpression("Length", "Params.pad9_length")

doc.recompute()
